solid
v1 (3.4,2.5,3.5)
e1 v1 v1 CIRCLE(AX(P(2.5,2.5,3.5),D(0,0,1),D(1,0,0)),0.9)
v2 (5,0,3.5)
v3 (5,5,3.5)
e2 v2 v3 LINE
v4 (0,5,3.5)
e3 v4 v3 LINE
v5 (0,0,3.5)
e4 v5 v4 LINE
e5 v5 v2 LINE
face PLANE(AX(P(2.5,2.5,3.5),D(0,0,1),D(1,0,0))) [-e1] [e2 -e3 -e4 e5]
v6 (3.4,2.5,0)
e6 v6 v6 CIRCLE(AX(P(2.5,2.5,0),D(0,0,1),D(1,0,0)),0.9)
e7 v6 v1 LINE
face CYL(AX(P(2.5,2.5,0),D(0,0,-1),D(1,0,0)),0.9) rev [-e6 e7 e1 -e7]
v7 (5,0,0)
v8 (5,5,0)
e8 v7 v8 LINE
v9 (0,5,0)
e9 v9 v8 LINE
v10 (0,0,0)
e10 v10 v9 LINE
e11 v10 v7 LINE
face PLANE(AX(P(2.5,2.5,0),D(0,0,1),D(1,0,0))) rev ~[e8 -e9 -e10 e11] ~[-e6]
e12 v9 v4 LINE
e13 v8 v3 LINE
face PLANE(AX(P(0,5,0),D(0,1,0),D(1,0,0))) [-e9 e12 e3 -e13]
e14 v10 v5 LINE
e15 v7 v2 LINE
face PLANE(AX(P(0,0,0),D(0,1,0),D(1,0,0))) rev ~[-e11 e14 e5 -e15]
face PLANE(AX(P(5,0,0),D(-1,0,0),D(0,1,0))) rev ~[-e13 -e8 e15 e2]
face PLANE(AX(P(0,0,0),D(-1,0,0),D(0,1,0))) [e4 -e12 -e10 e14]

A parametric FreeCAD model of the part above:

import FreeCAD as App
import Part
import Sketcher
from FreeCAD import Vector

doc = App.newDocument("Part")
params = doc.addObject("Spreadsheet::Sheet", "Params")
for row, (alias, value) in enumerate([
    ("sketch1_diameter", "1.8 mm"),
    ("pad1_length", "3.5 mm"),
    ("sketch2_width", "5 mm"),
    ("pad2_length", "3.5 mm"),
], start=1):
    params.set(f"A{row}", alias)
    params.set(f"B{row}", "=" + value)
    params.setAlias(f"B{row}", alias)

body = doc.addObject("PartDesign::Body", "Body")

# Sketch on XY plane
sketch1 = body.newObject("Sketcher::SketchObject", "Sketch")
sketch1.AttachmentSupport = (doc.getObject("XY_Plane"), [""])
sketch1.MapMode = "FlatFace"
sketch1.addGeometry(Part.Circle(Vector(2.5, 2.5, 0), Vector(0, 0, 1), 0.9), False)
sketch1.addConstraint(Sketcher.Constraint("Diameter", 0, 1.8))
sketch1.addConstraint(Sketcher.Constraint("DistanceX", -1, 1, 0, 3, 2.5))
sketch1.addConstraint(Sketcher.Constraint("DistanceY", -1, 1, 0, 3, 2.5))
sketch1.setExpression("Constraints[0]", "Params.sketch1_diameter")
pad1 = body.newObject("PartDesign::Pad", "Pad")
pad1.Profile = sketch1
pad1.setExpression("Length", "Params.pad1_length")
body2 = doc.addObject("PartDesign::Body", "Body001")

# Sketch on XY plane
sketch2 = body2.newObject("Sketcher::SketchObject", "Sketch001")
sketch2.AttachmentSupport = (doc.getObject("XY_Plane001"), [""])
sketch2.MapMode = "FlatFace"
sketch2.addGeometry(Part.LineSegment(Vector(0, 5, 0), Vector(0, 0, 0)), False)
sketch2.addGeometry(Part.LineSegment(Vector(0, 0, 0), Vector(5, 0, 0)), False)
sketch2.addGeometry(Part.LineSegment(Vector(5, 0, 0), Vector(5, 5, 0)), False)
sketch2.addGeometry(Part.LineSegment(Vector(5, 5, 0), Vector(0, 5, 0)), False)
sketch2.addConstraint(Sketcher.Constraint("Coincident", 0, 2, 1, 1))
sketch2.addConstraint(Sketcher.Constraint("Coincident", 1, 2, 2, 1))
sketch2.addConstraint(Sketcher.Constraint("Coincident", 2, 2, 3, 1))
sketch2.addConstraint(Sketcher.Constraint("Coincident", 3, 2, 0, 1))
sketch2.addConstraint(Sketcher.Constraint("Vertical", 0))
sketch2.addConstraint(Sketcher.Constraint("Horizontal", 1))
sketch2.addConstraint(Sketcher.Constraint("Vertical", 2))
sketch2.addConstraint(Sketcher.Constraint("Horizontal", 3))
sketch2.addConstraint(Sketcher.Constraint("Coincident", 0, 2, -1, 1))
sketch2.addConstraint(Sketcher.Constraint("Equal", 3, 0))
sketch2.addConstraint(Sketcher.Constraint("DistanceX", 1, 1, 1, 2, 5.0))
sketch2.setExpression("Constraints[10]", "Params.sketch2_width")
pad2 = body2.newObject("PartDesign::Pad", "Pad001")
pad2.Profile = sketch2
pad2.setExpression("Length", "Params.pad2_length")
doc.recompute()

boolean = body2.newObject("PartDesign::Boolean", "Boolean")
boolean.Type = "Cut"
boolean.addObjects([body])

doc.recompute()
